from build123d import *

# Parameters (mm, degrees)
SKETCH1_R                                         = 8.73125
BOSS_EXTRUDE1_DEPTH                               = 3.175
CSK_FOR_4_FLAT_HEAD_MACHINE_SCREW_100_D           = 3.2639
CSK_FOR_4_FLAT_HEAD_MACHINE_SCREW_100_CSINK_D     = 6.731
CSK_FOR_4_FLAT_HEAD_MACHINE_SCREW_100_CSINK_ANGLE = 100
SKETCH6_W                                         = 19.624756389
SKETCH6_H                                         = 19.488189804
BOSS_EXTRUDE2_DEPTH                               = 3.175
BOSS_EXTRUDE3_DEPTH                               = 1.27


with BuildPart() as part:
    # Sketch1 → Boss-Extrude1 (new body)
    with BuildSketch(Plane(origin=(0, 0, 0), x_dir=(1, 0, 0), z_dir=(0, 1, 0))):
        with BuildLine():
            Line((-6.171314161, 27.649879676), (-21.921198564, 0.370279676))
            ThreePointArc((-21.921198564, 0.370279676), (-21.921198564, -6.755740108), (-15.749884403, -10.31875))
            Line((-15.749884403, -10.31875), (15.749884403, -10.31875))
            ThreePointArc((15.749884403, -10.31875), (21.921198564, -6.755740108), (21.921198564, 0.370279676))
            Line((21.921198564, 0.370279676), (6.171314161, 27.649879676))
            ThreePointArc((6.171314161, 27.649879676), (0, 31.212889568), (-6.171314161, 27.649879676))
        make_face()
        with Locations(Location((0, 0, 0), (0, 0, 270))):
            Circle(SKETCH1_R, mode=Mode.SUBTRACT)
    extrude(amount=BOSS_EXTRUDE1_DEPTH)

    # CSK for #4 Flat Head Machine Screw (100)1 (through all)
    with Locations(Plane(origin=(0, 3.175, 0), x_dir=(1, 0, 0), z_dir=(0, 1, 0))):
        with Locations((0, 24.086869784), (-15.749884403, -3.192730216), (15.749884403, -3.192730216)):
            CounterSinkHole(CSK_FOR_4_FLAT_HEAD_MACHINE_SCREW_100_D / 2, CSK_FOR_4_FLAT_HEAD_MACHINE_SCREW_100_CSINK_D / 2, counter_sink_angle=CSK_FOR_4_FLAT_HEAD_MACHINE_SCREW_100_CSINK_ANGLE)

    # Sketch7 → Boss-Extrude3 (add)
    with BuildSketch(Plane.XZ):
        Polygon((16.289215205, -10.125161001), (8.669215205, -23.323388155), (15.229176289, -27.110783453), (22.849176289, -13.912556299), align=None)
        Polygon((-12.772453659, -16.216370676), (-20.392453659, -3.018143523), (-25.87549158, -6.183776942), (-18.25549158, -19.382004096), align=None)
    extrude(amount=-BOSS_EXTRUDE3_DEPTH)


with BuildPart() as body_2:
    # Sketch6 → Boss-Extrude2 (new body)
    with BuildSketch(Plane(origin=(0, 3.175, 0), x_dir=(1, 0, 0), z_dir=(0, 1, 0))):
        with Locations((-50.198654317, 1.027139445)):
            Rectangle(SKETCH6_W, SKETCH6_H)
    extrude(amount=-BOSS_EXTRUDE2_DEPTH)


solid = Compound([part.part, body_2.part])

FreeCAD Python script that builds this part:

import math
import FreeCAD as App
import Part
import Sketcher
from FreeCAD import Vector
Q = App.Units.Quantity


def add_polygon(sketch, points):
    """Adds a closed chain of lines whose ends are joined by coincident constraints."""
    first, n = sketch.GeometryCount, len(points)
    for a, b in zip(points, points[1:] + points[:1]):
        sketch.addGeometry(Part.LineSegment(App.Vector(*a, 0), App.Vector(*b, 0)), False)
    for i in range(n):
        sketch.addConstraint(Sketcher.Constraint("Coincident", first + i, 2, first + (i + 1) % n, 1))

doc = App.newDocument("Part")
body = doc.addObject("PartDesign::Body", "Body")

# Sketch on XZ plane
sketch1 = doc.addObject("Sketcher::SketchObject", "Sketch")
body.addObject(sketch1)
sketch1.AttachmentSupport = (doc.XZ_Plane, [""])
sketch1.MapMode = "FlatFace"
sketch1.addGeometry(Part.LineSegment(Vector(-6, -28, 0), Vector(-22, 0, 0)), False)
sketch1.addGeometry(Part.ArcOfCircle(Part.Circle(Vector(-16, 3, 0), Vector(0, 0, 1), 7), math.radians(90), math.radians(210)), False)
sketch1.addGeometry(Part.LineSegment(Vector(-16, 10, 0), Vector(16, 10, 0)), False)
sketch1.addGeometry(Part.ArcOfCircle(Part.Circle(Vector(16, 3, 0), Vector(0, 0, 1), 7), math.radians(-30), math.radians(90)), False)
sketch1.addGeometry(Part.LineSegment(Vector(22, 0, 0), Vector(6, -28, 0)), False)
sketch1.addGeometry(Part.ArcOfCircle(Part.Circle(Vector(0, -24, 0), Vector(0, 0, 1), 7), math.radians(-150), math.radians(-30)), False)
sketch1.addGeometry(Part.Circle(Vector(0, 0, 0), Vector(0, 0, 1), 9), False)
sketch1.addConstraint(Sketcher.Constraint("Tangent", 0, 2, 1, 2))
sketch1.addConstraint(Sketcher.Constraint("Tangent", 1, 1, 2, 1))
sketch1.addConstraint(Sketcher.Constraint("Tangent", 2, 2, 3, 2))
sketch1.addConstraint(Sketcher.Constraint("Tangent", 3, 1, 4, 1))
sketch1.addConstraint(Sketcher.Constraint("Tangent", 4, 2, 5, 2))
sketch1.addConstraint(Sketcher.Constraint("Tangent", 5, 1, 0, 1))
sketch1.addConstraint(Sketcher.Constraint("Horizontal", 2))
sketch1.addConstraint(Sketcher.Constraint("Coincident", 6, 3, -1, 1))
sketch1.addConstraint(Sketcher.Constraint("Equal", 1, 3))
sketch1.addConstraint(Sketcher.Constraint("Equal", 3, 5))
sketch1.addConstraint(Sketcher.Constraint("Symmetric", 0, 2, 3, 1, -2))
sketch1.addConstraint(Sketcher.Constraint("Diameter", 6, Q("0.6875 in")))
sketch1.addConstraint(Sketcher.Constraint("Angle", 0, Q("120 deg")))
sketch1.addConstraint(Sketcher.Constraint("DistanceY", -1, 1, 1, 1, Q("0.40625 in")))
sketch1.addConstraint(Sketcher.Constraint("Radius", 1, 7.12602))
sketch1.addConstraint(Sketcher.Constraint("DistanceY", 5, 3, 1, 3, Q("1.074 in")))
pad1 = doc.addObject("PartDesign::Pad", "Pad")
body.addObject(pad1)
pad1.Profile = sketch1
pad1.Length = Q("0.125 in")
pad1.Reversed = True

# Sketch on XZ plane
sketch2 = doc.addObject("Sketcher::SketchObject", "Sketch001")
body.addObject(sketch2)
sketch2.AttachmentSupport = (doc.XZ_Plane, [""])
sketch2.MapMode = "FlatFace"
sketch2.AttachmentOffset = App.Placement(Vector(0, 0, -0.125 * 25.4), App.Rotation())
sketch2.addGeometry(Part.Circle(Vector(0, -24.1, 0), Vector(0, 0, 1), 1.6), False)
sketch2.addGeometry(Part.Circle(Vector(-15.7, 3.2, 0), Vector(0, 0, 1), 1.6), False)
sketch2.addGeometry(Part.Circle(Vector(15.7, 3.2, 0), Vector(0, 0, 1), 1.6), False)
sketch2.addConstraint(Sketcher.Constraint("Equal", 0, 1))
sketch2.addConstraint(Sketcher.Constraint("Equal", 1, 2))
sketch2.addConstraint(Sketcher.Constraint("Symmetric", 1, 3, 2, 3, -2))
sketch2.addConstraint(Sketcher.Constraint("PointOnObject", 0, 3, -2))
sketch2.addConstraint(Sketcher.Constraint("Diameter", 0, Q("0.1285 in")))
sketch2.addConstraint(Sketcher.Constraint("DistanceY", 0, 3, 1, 3, Q("1.074 in")))
sketch2.addConstraint(Sketcher.Constraint("DistanceY", 0, 3, -1, 1, 24.08687))
sketch2.addConstraint(Sketcher.Constraint("DistanceX", 1, 3, 2, 3, 31.499769))
doc.recompute()
hole = doc.addObject("PartDesign::Hole", "Hole")
body.addObject(hole)
hole.Profile = sketch2
hole.ThreadType = "None"
hole.Diameter = Q("0.1285 in")
hole.DepthType = "ThroughAll"
hole.HoleCutType = "Countersink"
hole.HoleCutDiameter = Q("0.265 in")
hole.HoleCutCountersinkAngle = 100
hole.Reversed = True

# Sketch on XZ plane
sketch3 = doc.addObject("Sketcher::SketchObject", "Sketch002")
body.addObject(sketch3)
sketch3.AttachmentSupport = (doc.XZ_Plane, [""])
sketch3.MapMode = "FlatFace"
add_polygon(sketch3, [(16, -10), (9, -23), (15, -27), (23, -14)])  # lines 0-3
add_polygon(sketch3, [(-13, -16), (-20, -3), (-26, -6), (-18, -19)])  # lines 4-7
sketch3.addConstraint(Sketcher.Constraint("Perpendicular", 0, 1))
sketch3.addConstraint(Sketcher.Constraint("Perpendicular", 1, 2))
sketch3.addConstraint(Sketcher.Constraint("Perpendicular", 2, 3))
sketch3.addConstraint(Sketcher.Constraint("Perpendicular", 4, 5))
sketch3.addConstraint(Sketcher.Constraint("Perpendicular", 5, 6))
sketch3.addConstraint(Sketcher.Constraint("Perpendicular", 6, 7))
sketch3.addConstraint(Sketcher.Constraint("Equal", 2, 4))
sketch3.addConstraint(Sketcher.Constraint("Angle", 0, Q("-120 deg")))
sketch3.addConstraint(Sketcher.Constraint("Angle", 4, Q("120 deg")))
sketch3.addConstraint(Sketcher.Constraint("Distance", 0, Q("0.6 in")))
sketch3.addConstraint(Sketcher.Constraint("Distance", 1, 7.574791))
sketch3.addConstraint(Sketcher.Constraint("DistanceY", 0, 2, -1, 1, 23.323388))
sketch3.addConstraint(Sketcher.Constraint("DistanceX", 5, 2, -1, 1, 25.875492))
sketch3.addConstraint(Sketcher.Constraint("DistanceY", 7, 2, -1, 1, 16.216371))
sketch3.addConstraint(Sketcher.Constraint("DistanceX", 4, 2, 0, 2, 29.061669))
sketch3.addConstraint(Sketcher.Constraint("DistanceY", 0, 2, 5, 2, 17.139611))
pad2 = doc.addObject("PartDesign::Pad", "Pad001")
body.addObject(pad2)
pad2.Profile = sketch3
pad2.Length = Q("0.05 in")
pad2.Reversed = True
body2 = doc.addObject("PartDesign::Body", "Body001")

# Sketch on XZ plane
sketch4 = doc.addObject("Sketcher::SketchObject", "Sketch003")
body2.addObject(sketch4)
sketch4.AttachmentSupport = (doc.getObject("XZ_Plane001"), [""])
sketch4.MapMode = "FlatFace"
sketch4.AttachmentOffset = App.Placement(Vector(0, 0, -0.125 * 25.4), App.Rotation())
add_polygon(sketch4, [(-60, -11), (-60, 9), (-40, 9), (-40, -11)])  # lines 0-3
sketch4.addConstraint(Sketcher.Constraint("Vertical", 0))
sketch4.addConstraint(Sketcher.Constraint("Horizontal", 1))
sketch4.addConstraint(Sketcher.Constraint("Vertical", 2))
sketch4.addConstraint(Sketcher.Constraint("Horizontal", 3))
sketch4.addConstraint(Sketcher.Constraint("DistanceY", 0, 1, 0, 2, 19.48819))
sketch4.addConstraint(Sketcher.Constraint("DistanceX", 1, 1, 1, 2, 19.624756))
sketch4.addConstraint(Sketcher.Constraint("DistanceX", 0, 2, -1, 1, 60.011033))
sketch4.addConstraint(Sketcher.Constraint("DistanceY", -1, 1, 0, 2, 8.716955))
pad3 = doc.addObject("PartDesign::Pad", "Pad002")
body2.addObject(pad3)
pad3.Profile = sketch4
pad3.Length = Q("0.125 in")

doc.recompute()
